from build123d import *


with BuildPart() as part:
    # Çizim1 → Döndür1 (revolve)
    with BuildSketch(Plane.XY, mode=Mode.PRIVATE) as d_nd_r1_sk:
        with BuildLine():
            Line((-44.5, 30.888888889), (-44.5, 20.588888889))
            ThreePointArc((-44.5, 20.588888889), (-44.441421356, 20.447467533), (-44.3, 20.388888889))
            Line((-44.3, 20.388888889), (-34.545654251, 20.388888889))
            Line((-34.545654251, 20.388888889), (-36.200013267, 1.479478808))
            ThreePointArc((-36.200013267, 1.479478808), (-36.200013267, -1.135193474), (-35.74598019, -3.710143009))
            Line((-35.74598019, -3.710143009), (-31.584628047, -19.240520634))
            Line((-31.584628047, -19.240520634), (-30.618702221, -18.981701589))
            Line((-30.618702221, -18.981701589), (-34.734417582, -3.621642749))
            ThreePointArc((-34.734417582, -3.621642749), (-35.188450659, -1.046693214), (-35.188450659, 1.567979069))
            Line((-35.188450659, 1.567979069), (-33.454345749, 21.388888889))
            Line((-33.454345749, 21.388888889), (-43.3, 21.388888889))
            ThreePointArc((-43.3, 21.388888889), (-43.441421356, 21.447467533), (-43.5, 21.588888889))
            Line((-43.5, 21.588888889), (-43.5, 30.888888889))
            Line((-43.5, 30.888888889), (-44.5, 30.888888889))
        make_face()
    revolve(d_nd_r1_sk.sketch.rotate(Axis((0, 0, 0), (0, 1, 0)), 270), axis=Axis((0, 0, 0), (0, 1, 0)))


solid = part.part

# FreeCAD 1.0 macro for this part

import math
import FreeCAD as App
import Part
import Sketcher

V = App.Vector
Q = App.Units.Quantity

doc = App.newDocument("Part")
body = doc.addObject("PartDesign::Body", "Body")

# Sketch on XY plane
sketch1 = doc.addObject("Sketcher::SketchObject", "Sketch")
body.addObject(sketch1)
sketch1.AttachmentSupport = (doc.XY_Plane, [""])
sketch1.MapMode = "FlatFace"
sketch1.addGeometry(Part.LineSegment(V(-44.5, 30.89, 0), V(-44.5, 20.59, 0)), False)
sketch1.addGeometry(Part.ArcOfCircle(Part.Circle(V(-44.3, 20.59, 0), V(0, 0, 1), 0.2), math.radians(-180), math.radians(-90)), False)
sketch1.addGeometry(Part.LineSegment(V(-44.3, 20.39, 0), V(-34.55, 20.39, 0)), False)
sketch1.addGeometry(Part.LineSegment(V(-34.55, 20.39, 0), V(-36.2, 1.48, 0)), False)
sketch1.addGeometry(Part.ArcOfCircle(Part.Circle(V(-21.26, 0.17, 0), V(0, 0, 1), 15), math.radians(175), math.radians(195)), False)
sketch1.addGeometry(Part.LineSegment(V(-35.75, -3.71, 0), V(-31.58, -19.24, 0)), False)
sketch1.addGeometry(Part.LineSegment(V(-31.58, -19.24, 0), V(-30.62, -18.98, 0)), False)
sketch1.addGeometry(Part.LineSegment(V(-30.62, -18.98, 0), V(-34.73, -3.62, 0)), False)
sketch1.addGeometry(Part.ArcOfCircle(Part.Circle(V(-20.25, 0.26, 0), V(0, 0, 1), 15), math.radians(175), math.radians(195)), False)
sketch1.addGeometry(Part.LineSegment(V(-35.19, 1.57, 0), V(-33.45, 21.39, 0)), False)
sketch1.addGeometry(Part.LineSegment(V(-33.45, 21.39, 0), V(-43.3, 21.39, 0)), False)
sketch1.addGeometry(Part.ArcOfCircle(Part.Circle(V(-43.3, 21.59, 0), V(0, 0, 1), 0.2), math.radians(-180), math.radians(-90)), False)
sketch1.addGeometry(Part.LineSegment(V(-43.5, 21.59, 0), V(-43.5, 30.89, 0)), False)
sketch1.addGeometry(Part.LineSegment(V(-43.5, 30.89, 0), V(-44.5, 30.89, 0)), False)
sketch1.addConstraint(Sketcher.Constraint("Tangent", 0, 2, 1, 1))
sketch1.addConstraint(Sketcher.Constraint("Tangent", 1, 2, 2, 1))
sketch1.addConstraint(Sketcher.Constraint("Coincident", 2, 2, 3, 1))
sketch1.addConstraint(Sketcher.Constraint("Tangent", 3, 2, 4, 1))
sketch1.addConstraint(Sketcher.Constraint("Tangent", 4, 2, 5, 1))
sketch1.addConstraint(Sketcher.Constraint("Coincident", 5, 2, 6, 1))
sketch1.addConstraint(Sketcher.Constraint("Coincident", 6, 2, 7, 1))
sketch1.addConstraint(Sketcher.Constraint("Tangent", 7, 2, 8, 2))
sketch1.addConstraint(Sketcher.Constraint("Tangent", 8, 1, 9, 1))
sketch1.addConstraint(Sketcher.Constraint("Coincident", 9, 2, 10, 1))
sketch1.addConstraint(Sketcher.Constraint("Tangent", 10, 2, 11, 2))
sketch1.addConstraint(Sketcher.Constraint("Tangent", 11, 1, 12, 1))
sketch1.addConstraint(Sketcher.Constraint("Coincident", 12, 2, 13, 1))
sketch1.addConstraint(Sketcher.Constraint("Coincident", 13, 2, 0, 1))
sketch1.addConstraint(Sketcher.Constraint("Vertical", 0))
sketch1.addConstraint(Sketcher.Constraint("Horizontal", 2))
sketch1.addConstraint(Sketcher.Constraint("Horizontal", 10))
sketch1.addConstraint(Sketcher.Constraint("Vertical", 12))
sketch1.addConstraint(Sketcher.Constraint("Horizontal", 13))
sketch1.addConstraint(Sketcher.Constraint("Equal", 4, 8))
sketch1.addConstraint(Sketcher.Constraint("Equal", 1, 11))
sketch1.addConstraint(Sketcher.Constraint("Perpendicular", 5, 6))
sketch1.addConstraint(Sketcher.Constraint("Perpendicular", 6, 7))
sketch1.addConstraint(Sketcher.Constraint("Parallel", 3, 9))
sketch1.addConstraint(Sketcher.Constraint("Radius", 4, 15.0))
sketch1.addConstraint(Sketcher.Constraint("Radius", 1, 0.2))
sketch1.addConstraint(Sketcher.Constraint("DistanceX", 13, 2, 13, 1, 1.0))
sketch1.addConstraint(Sketcher.Constraint("Angle", 3, Q("-95 deg")))
sketch1.addConstraint(Sketcher.Constraint("Angle", 5, Q("-75 deg")))
sketch1.addConstraint(Sketcher.Constraint("Distance", 6, 1.0))
sketch1.addConstraint(Sketcher.Constraint("DistanceY", 0, 2, 0, 1, 10.3))
sketch1.addConstraint(Sketcher.Constraint("DistanceY", 12, 1, 12, 2, 9.3))
sketch1.addConstraint(Sketcher.Constraint("DistanceX", 1, 3, -1, 1, 44.3))
sketch1.addConstraint(Sketcher.Constraint("DistanceY", 5, 2, 3, 2, 20.719999))
sketch1.addConstraint(Sketcher.Constraint("DistanceY", 6, 2, -1, 1, 18.981702))
sketch1.addConstraint(Sketcher.Constraint("DistanceY", 4, 3, 8, 3, 0.0885))
sketch1.addConstraint(Sketcher.Constraint("Distance", 3, 18.981641))
sketch1.addConstraint(Sketcher.Constraint("DistanceX", 2, 1, 2, 2, 9.754346))
revolution = doc.addObject("PartDesign::Revolution", "Revolution")
body.addObject(revolution)
revolution.Profile = sketch1
revolution.ReferenceAxis = (sketch1, ["V_Axis"])
revolution.Angle = 360

doc.recompute()
